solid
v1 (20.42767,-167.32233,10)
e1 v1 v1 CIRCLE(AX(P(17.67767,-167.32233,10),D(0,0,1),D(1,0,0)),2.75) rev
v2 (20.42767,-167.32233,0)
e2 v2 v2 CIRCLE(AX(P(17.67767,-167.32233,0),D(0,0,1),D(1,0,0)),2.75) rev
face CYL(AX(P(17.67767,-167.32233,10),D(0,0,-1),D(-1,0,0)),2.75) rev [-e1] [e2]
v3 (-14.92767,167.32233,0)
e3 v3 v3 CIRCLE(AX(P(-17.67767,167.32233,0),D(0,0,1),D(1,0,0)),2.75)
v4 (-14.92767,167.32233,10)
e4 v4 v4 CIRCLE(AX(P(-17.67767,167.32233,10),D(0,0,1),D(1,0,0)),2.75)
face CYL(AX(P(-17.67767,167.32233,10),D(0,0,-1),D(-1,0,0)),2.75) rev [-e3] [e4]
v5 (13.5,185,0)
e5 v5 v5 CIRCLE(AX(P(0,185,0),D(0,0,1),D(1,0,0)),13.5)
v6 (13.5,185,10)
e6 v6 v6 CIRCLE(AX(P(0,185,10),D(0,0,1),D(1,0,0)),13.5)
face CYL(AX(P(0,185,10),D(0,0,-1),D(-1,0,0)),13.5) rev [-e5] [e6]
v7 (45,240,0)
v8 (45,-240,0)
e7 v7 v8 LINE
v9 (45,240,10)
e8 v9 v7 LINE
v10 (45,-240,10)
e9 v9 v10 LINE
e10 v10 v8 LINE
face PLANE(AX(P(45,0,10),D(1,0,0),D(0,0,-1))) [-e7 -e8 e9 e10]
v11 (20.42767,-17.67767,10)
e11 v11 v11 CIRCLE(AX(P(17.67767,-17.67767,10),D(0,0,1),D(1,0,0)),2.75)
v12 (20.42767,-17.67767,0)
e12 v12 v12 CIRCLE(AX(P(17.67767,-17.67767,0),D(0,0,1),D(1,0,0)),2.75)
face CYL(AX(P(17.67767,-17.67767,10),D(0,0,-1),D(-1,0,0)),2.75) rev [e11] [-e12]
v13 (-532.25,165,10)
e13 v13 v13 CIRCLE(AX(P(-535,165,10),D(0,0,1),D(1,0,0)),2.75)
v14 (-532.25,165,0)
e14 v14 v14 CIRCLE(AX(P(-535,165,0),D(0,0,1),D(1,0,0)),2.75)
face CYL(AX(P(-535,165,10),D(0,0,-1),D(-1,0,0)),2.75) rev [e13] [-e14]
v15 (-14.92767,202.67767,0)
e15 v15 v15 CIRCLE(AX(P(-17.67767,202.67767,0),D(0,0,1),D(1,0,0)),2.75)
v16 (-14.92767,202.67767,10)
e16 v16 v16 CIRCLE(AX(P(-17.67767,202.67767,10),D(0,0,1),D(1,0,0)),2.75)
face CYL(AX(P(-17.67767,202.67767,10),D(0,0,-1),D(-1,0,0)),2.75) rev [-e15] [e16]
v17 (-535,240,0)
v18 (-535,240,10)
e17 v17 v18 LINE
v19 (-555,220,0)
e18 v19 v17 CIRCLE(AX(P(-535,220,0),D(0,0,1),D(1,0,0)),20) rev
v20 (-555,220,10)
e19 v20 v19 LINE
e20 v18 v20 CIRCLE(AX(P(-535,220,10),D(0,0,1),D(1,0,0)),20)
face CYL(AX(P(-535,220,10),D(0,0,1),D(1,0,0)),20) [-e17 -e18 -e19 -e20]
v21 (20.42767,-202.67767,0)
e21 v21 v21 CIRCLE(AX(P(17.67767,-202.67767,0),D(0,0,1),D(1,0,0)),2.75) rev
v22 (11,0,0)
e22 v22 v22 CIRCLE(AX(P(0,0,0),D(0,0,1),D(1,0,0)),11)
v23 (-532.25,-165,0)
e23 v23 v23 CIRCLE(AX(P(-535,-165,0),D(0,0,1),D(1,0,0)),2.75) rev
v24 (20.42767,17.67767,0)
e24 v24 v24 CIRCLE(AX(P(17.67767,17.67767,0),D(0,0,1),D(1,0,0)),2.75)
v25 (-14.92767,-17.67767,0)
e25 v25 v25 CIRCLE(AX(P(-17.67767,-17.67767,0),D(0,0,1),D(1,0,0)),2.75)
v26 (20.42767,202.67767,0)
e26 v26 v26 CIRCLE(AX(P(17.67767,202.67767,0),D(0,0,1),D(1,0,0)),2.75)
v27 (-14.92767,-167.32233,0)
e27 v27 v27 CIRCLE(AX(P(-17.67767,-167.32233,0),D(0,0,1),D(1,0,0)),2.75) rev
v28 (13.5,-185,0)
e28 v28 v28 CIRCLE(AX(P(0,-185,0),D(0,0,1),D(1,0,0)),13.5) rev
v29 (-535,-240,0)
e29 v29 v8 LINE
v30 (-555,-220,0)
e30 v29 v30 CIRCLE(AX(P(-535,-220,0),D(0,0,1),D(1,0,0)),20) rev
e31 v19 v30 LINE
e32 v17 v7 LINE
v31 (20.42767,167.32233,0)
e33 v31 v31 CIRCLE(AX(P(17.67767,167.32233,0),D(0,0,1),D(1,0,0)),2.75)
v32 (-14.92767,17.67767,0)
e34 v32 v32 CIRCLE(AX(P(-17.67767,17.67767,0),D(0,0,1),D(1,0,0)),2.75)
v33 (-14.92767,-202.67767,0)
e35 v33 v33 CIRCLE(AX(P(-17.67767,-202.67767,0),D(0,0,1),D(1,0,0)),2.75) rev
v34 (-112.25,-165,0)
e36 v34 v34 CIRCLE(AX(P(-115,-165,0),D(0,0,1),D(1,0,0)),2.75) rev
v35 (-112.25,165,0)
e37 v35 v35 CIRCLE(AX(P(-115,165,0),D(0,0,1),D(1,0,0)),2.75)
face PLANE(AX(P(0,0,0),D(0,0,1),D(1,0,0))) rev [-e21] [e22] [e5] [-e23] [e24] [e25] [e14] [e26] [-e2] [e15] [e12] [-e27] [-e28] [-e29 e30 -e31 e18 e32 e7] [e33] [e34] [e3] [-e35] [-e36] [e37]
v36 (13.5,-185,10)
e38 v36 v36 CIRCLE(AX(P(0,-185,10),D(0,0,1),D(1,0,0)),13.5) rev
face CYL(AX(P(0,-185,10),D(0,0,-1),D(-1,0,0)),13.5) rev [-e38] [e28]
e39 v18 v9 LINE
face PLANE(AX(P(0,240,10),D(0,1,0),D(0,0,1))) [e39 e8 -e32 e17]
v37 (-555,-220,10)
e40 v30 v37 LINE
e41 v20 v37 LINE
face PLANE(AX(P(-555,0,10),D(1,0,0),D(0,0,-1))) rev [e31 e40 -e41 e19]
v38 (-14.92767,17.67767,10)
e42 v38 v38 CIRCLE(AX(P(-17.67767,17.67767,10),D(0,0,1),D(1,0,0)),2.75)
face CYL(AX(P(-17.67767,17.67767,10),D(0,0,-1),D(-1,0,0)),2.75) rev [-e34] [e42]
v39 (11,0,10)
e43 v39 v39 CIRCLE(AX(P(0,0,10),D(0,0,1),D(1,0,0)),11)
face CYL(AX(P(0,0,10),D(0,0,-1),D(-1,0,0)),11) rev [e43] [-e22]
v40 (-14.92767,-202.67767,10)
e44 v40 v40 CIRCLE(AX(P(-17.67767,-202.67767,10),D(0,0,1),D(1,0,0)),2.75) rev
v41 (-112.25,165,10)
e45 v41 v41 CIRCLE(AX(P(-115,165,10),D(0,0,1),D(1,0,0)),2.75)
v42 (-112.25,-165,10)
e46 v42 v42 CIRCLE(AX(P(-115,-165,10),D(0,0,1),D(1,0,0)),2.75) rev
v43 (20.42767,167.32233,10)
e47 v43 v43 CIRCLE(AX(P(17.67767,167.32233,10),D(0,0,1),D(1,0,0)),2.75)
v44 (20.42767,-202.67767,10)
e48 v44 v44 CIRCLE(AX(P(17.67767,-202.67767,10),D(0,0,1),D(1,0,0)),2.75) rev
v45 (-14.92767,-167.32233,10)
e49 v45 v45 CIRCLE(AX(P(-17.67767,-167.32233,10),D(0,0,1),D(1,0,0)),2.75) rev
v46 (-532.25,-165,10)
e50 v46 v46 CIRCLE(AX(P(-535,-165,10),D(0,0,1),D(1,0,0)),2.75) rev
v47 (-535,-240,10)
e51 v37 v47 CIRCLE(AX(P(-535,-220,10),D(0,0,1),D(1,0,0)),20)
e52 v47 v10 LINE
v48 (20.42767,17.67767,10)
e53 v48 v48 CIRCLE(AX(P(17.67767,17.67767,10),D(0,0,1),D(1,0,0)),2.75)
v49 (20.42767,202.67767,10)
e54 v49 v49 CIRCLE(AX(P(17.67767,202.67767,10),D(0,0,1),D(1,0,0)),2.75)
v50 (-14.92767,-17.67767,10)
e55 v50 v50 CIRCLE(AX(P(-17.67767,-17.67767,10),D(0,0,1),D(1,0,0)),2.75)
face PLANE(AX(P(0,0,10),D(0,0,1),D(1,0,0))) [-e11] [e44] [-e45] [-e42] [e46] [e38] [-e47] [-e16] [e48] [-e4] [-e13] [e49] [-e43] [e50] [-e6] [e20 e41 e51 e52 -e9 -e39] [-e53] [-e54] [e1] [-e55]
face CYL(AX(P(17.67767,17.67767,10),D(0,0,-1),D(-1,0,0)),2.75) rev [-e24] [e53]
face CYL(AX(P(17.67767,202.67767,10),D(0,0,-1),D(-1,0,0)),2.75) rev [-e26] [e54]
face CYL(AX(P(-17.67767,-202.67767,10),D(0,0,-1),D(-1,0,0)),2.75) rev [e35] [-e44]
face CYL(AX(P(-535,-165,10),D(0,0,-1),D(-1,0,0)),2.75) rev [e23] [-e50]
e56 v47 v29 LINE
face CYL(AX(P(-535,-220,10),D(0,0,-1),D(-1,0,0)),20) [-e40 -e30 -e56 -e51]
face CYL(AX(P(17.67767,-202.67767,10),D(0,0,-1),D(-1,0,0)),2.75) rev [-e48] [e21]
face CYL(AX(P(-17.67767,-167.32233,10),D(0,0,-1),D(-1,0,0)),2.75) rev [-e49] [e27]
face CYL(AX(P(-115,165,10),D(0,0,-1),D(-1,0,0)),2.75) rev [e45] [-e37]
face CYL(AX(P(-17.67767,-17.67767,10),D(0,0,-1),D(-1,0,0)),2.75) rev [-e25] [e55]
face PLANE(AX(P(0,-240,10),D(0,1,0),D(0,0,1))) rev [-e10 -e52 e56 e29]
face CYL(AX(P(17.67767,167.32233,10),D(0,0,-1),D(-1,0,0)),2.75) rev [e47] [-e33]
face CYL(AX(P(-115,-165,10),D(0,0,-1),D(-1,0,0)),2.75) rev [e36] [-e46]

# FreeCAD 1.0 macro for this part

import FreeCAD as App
import Part
import Sketcher
from FreeCAD import Vector


def edges_at(feature, points):
    """Names of the edges that pass closest to the given points."""
    edges = feature.Shape.Edges
    near = lambda p: min(range(len(edges)), key=lambda i: edges[i].distToShape(Part.Vertex(*p))[0])
    return sorted({f"Edge{near(p) + 1}" for p in points})

doc = App.newDocument("Part")
body = doc.addObject("PartDesign::Body", "Body")

sketch1 = body.newObject("Sketcher::SketchObject", "Sketch")
sketch1.AttachmentSupport = (doc.getObject("XY_Plane"), [""])
sketch1.MapMode = "FlatFace"
sketch1.addGeometry([
    Part.LineSegment(Vector(-555, 240, 0), Vector(-555, -240, 0)),
    Part.LineSegment(Vector(-555, -240, 0), Vector(45, -240, 0)),
    Part.LineSegment(Vector(45, -240, 0), Vector(45, 240, 0)),
    Part.LineSegment(Vector(45, 240, 0), Vector(-555, 240, 0)),
    Part.Circle(Vector(-535, -165, 0), Vector(0, 0, 1), 2.75),
    Part.Circle(Vector(-115, -165, 0), Vector(0, 0, 1), 2.75),
    Part.Circle(Vector(-17.67767, -202.67767, 0), Vector(0, 0, 1), 2.75),
    Part.Circle(Vector(17.67767, -202.67767, 0), Vector(0, 0, 1), 2.75),
    Part.Circle(Vector(0, -185, 0), Vector(0, 0, 1), 13.5),
    Part.Circle(Vector(-17.67767, -167.32233, 0), Vector(0, 0, 1), 2.75),
    Part.Circle(Vector(17.67767, -167.32233, 0), Vector(0, 0, 1), 2.75),
    Part.Circle(Vector(-17.67767, -17.67767, 0), Vector(0, 0, 1), 2.75),
    Part.Circle(Vector(17.67767, -17.67767, 0), Vector(0, 0, 1), 2.75),
    Part.Circle(Vector(-535, 165, 0), Vector(0, 0, 1), 2.75),
    Part.Circle(Vector(-17.67767, 17.67767, 0), Vector(0, 0, 1), 2.75),
    Part.Circle(Vector(0, 0, 0), Vector(0, 0, 1), 11),
    Part.Circle(Vector(17.67767, 17.67767, 0), Vector(0, 0, 1), 2.75),
    Part.Circle(Vector(-115, 165, 0), Vector(0, 0, 1), 2.75),
    Part.Circle(Vector(-17.67767, 167.32233, 0), Vector(0, 0, 1), 2.75),
    Part.Circle(Vector(17.67767, 167.32233, 0), Vector(0, 0, 1), 2.75),
    Part.Circle(Vector(-17.67767, 202.67767, 0), Vector(0, 0, 1), 2.75),
    Part.Circle(Vector(0, 185, 0), Vector(0, 0, 1), 13.5),
    Part.Circle(Vector(17.67767, 202.67767, 0), Vector(0, 0, 1), 2.75),
], False)
sketch1.addConstraint([
    Sketcher.Constraint("Coincident", 0, 2, 1, 1),
    Sketcher.Constraint("Coincident", 1, 2, 2, 1),
    Sketcher.Constraint("Coincident", 2, 2, 3, 1),
    Sketcher.Constraint("Coincident", 3, 2, 0, 1),
    Sketcher.Constraint("Vertical", 0),
    Sketcher.Constraint("Horizontal", 1),
    Sketcher.Constraint("Vertical", 2),
    Sketcher.Constraint("Horizontal", 3),
    Sketcher.Constraint("Coincident", 15, 3, -1, 1),
    Sketcher.Constraint("Equal", 4, 5),
    Sketcher.Constraint("Equal", 5, 6),
    Sketcher.Constraint("Equal", 6, 7),
    Sketcher.Constraint("Equal", 7, 9),
    Sketcher.Constraint("Equal", 9, 10),
    Sketcher.Constraint("Equal", 10, 11),
    Sketcher.Constraint("Equal", 11, 12),
    Sketcher.Constraint("Equal", 12, 13),
    Sketcher.Constraint("Equal", 13, 14),
    Sketcher.Constraint("Equal", 14, 16),
    Sketcher.Constraint("Equal", 16, 17),
    Sketcher.Constraint("Equal", 17, 18),
    Sketcher.Constraint("Equal", 18, 19),
    Sketcher.Constraint("Equal", 19, 20),
    Sketcher.Constraint("Equal", 8, 21),
    Sketcher.Constraint("Equal", 20, 22),
    Sketcher.Constraint("Symmetric", 12, 3, 14, 3, -1, 1),
    Sketcher.Constraint("Symmetric", 11, 3, 16, 3, -1, 1),
    Sketcher.Constraint("Symmetric", 10, 3, 18, 3, -1, 1),
    Sketcher.Constraint("Symmetric", 9, 3, 19, 3, -1, 1),
    Sketcher.Constraint("Symmetric", 7, 3, 20, 3, -1, 1),
    Sketcher.Constraint("Symmetric", 8, 3, 21, 3, -1, 1),
    Sketcher.Constraint("Symmetric", 6, 3, 22, 3, -1, 1),
    Sketcher.Constraint("Symmetric", 6, 3, 7, 3, -2),
    Sketcher.Constraint("Symmetric", 9, 3, 10, 3, -2),
    Sketcher.Constraint("Symmetric", 11, 3, 12, 3, -2),
    Sketcher.Constraint("Symmetric", 4, 3, 13, 3, -1),
    Sketcher.Constraint("Symmetric", 5, 3, 17, 3, -1),
    Sketcher.Constraint("PointOnObject", 8, 3, -2),
    Sketcher.Constraint("Horizontal", 4, 3, 5, 3),
    Sketcher.Constraint("Vertical", 6, 3, 9, 3),
    Sketcher.Constraint("Vertical", 9, 3, 11, 3),
    Sketcher.Constraint("Diameter", 8, 27.0),
    Sketcher.Constraint("Diameter", 15, 22.0),
    Sketcher.Constraint("Diameter", 4, 5.5),
    Sketcher.Constraint("DistanceX", 1, 1, 1, 2, 600.0),
    Sketcher.Constraint("DistanceY", 0, 2, 0, 1, 480.0),
    Sketcher.Constraint("DistanceX", 4, 3, -1, 1, 535.0),
    Sketcher.Constraint("DistanceY", 4, 3, -1, 1, 165.0),
    Sketcher.Constraint("DistanceX", 5, 3, -1, 1, 115.0),
    Sketcher.Constraint("DistanceY", 8, 3, -1, 1, 185.0),
    Sketcher.Constraint("DistanceX", 0, 2, -1, 1, 555.0),
    Sketcher.Constraint("DistanceY", 0, 2, -1, 1, 240.0),
    Sketcher.Constraint("DistanceY", 6, 3, 11, 3, 185.0),
    Sketcher.Constraint("DistanceY", 9, 3, 14, 3, 185.0),
    Sketcher.Constraint("DistanceX", 6, 3, -1, 1, 17.67767),
    Sketcher.Constraint("DistanceY", 6, 3, -1, 1, 202.67767),
])
pad1 = body.newObject("PartDesign::Pad", "Pad")
pad1.Profile = sketch1
pad1.Length = 10
doc.recompute()

fillet = body.newObject("PartDesign::Fillet", "Fillet")
fillet.Base = (pad1, edges_at(pad1, [(-555, -240, 5), (-555, 240, 5)]))
fillet.Radius = 20

doc.recompute()
